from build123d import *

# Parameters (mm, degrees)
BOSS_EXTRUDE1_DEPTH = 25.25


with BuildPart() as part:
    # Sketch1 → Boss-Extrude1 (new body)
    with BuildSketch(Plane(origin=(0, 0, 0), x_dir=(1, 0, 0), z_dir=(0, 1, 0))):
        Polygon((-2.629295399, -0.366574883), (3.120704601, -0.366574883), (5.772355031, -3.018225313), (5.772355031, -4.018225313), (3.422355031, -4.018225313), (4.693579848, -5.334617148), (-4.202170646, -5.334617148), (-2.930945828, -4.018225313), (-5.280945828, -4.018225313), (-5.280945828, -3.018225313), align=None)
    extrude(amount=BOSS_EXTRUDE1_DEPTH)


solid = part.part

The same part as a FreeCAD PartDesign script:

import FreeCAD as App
import Part
import Sketcher
from FreeCAD import Vector
Q = App.Units.Quantity

doc = App.newDocument("Part")
body = doc.addObject("PartDesign::Body", "Body")

# Sketch on XZ plane
sketch1 = body.newObject("Sketcher::SketchObject", "Sketch")
sketch1.AttachmentSupport = (doc.getObject("XZ_Plane"), [""])
sketch1.MapMode = "FlatFace"
sketch1.addGeometry([
    Part.LineSegment(Vector(3.1, 0.4, 0), Vector(-2.6, 0.4, 0)),  # 0
    Part.LineSegment(Vector(-2.6, 0.4, 0), Vector(-5.3, 3, 0)),  # 1
    Part.LineSegment(Vector(-5.3, 3, 0), Vector(-5.3, 4, 0)),  # 2
    Part.LineSegment(Vector(-5.3, 4, 0), Vector(-2.9, 4, 0)),  # 3
    Part.LineSegment(Vector(-2.9, 4, 0), Vector(-4.2, 5.3, 0)),  # 4
    Part.LineSegment(Vector(-4.2, 5.3, 0), Vector(4.7, 5.3, 0)),  # 5
    Part.LineSegment(Vector(4.7, 5.3, 0), Vector(3.4, 4, 0)),  # 6
    Part.LineSegment(Vector(3.4, 4, 0), Vector(5.8, 4, 0)),  # 7
    Part.LineSegment(Vector(5.8, 4, 0), Vector(5.8, 3, 0)),  # 8
    Part.LineSegment(Vector(5.8, 3, 0), Vector(3.1, 0.4, 0)),  # 9
], False)
sketch1.addConstraint([
    Sketcher.Constraint("Coincident", 0, 2, 1, 1),
    Sketcher.Constraint("Coincident", 1, 2, 2, 1),
    Sketcher.Constraint("Coincident", 2, 2, 3, 1),
    Sketcher.Constraint("Coincident", 3, 2, 4, 1),
    Sketcher.Constraint("Coincident", 4, 2, 5, 1),
    Sketcher.Constraint("Coincident", 5, 2, 6, 1),
    Sketcher.Constraint("Coincident", 6, 2, 7, 1),
    Sketcher.Constraint("Coincident", 7, 2, 8, 1),
    Sketcher.Constraint("Coincident", 8, 2, 9, 1),
    Sketcher.Constraint("Coincident", 9, 2, 0, 1),
    Sketcher.Constraint("Horizontal", 0),
    Sketcher.Constraint("Vertical", 2),
    Sketcher.Constraint("Horizontal", 3),
    Sketcher.Constraint("Horizontal", 5),
    Sketcher.Constraint("Horizontal", 7),
    Sketcher.Constraint("Vertical", 8),
    Sketcher.Constraint("Perpendicular", 1, 9),
    Sketcher.Constraint("Horizontal", 3, 2, 6, 2),
    Sketcher.Constraint("Horizontal", 1, 2, 8, 2),
    Sketcher.Constraint("Equal", 3, 7),
    Sketcher.Constraint("Equal", 4, 6),
    Sketcher.Constraint("Equal", 1, 9),
    Sketcher.Constraint("DistanceY", 2, 1, 2, 2, 1.0),
    Sketcher.Constraint("Angle", 4, Q("134 deg")),
    Sketcher.Constraint("DistanceX", 0, 2, 0, 1, 5.75),
    Sketcher.Constraint("DistanceX", 3, 1, 3, 2, 2.35),
    Sketcher.Constraint("Distance", 1, 3.75),
    Sketcher.Constraint("Distance", 4, 1.83),
    Sketcher.Constraint("DistanceX", 4, 2, -1, 1, 4.202171),
    Sketcher.Constraint("DistanceY", -1, 1, 0, 2, 0.366575),
])
pad1 = body.newObject("PartDesign::Pad", "Pad")
pad1.Profile = sketch1
pad1.Length = 25.25
pad1.Reversed = True

doc.recompute()
